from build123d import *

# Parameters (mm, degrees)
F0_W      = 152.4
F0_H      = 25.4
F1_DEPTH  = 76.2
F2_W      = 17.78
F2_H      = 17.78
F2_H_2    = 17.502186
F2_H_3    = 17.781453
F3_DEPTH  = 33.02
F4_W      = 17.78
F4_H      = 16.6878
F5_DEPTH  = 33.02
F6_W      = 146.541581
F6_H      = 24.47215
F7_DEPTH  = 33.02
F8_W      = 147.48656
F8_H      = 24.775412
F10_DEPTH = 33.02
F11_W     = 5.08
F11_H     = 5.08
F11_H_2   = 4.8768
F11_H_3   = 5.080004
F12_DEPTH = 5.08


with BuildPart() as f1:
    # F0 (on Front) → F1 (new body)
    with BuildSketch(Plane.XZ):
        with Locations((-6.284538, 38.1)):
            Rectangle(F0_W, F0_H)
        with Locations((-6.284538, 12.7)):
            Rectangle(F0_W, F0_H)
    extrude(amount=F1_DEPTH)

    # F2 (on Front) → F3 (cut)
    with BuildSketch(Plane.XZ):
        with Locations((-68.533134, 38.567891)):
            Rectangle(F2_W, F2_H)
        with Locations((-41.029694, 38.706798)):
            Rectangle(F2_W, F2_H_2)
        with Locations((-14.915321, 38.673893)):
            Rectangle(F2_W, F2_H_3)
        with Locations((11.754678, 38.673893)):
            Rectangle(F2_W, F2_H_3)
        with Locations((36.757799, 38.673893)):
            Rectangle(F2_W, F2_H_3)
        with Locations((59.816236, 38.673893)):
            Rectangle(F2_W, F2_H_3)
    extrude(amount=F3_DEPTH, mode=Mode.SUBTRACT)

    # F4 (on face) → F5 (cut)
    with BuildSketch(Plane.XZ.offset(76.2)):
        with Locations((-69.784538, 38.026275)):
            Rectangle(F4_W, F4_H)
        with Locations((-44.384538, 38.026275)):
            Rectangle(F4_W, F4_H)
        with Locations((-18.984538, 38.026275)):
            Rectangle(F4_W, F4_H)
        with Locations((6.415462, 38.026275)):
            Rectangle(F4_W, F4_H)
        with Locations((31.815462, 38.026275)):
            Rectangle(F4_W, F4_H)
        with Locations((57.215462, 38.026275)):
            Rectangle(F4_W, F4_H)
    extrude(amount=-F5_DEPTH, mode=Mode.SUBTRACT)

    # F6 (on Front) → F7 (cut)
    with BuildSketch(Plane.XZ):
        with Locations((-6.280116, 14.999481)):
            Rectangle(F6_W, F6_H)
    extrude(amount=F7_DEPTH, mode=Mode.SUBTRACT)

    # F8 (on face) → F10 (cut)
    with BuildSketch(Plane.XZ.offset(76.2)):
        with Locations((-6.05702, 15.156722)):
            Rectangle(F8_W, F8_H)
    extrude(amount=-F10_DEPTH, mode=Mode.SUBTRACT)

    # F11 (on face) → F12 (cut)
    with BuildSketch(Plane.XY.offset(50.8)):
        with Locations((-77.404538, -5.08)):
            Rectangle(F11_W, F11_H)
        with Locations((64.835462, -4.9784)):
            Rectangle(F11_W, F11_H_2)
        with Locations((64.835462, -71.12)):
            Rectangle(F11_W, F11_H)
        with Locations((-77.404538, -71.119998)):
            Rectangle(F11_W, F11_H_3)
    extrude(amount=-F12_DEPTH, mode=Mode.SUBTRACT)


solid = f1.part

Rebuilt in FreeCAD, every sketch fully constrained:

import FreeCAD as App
import Part
import Sketcher
Q = App.Units.Quantity

doc = App.newDocument("Part")
body = doc.addObject("PartDesign::Body", "Body")

# Sketch on XZ plane
sketch1 = body.newObject("Sketcher::SketchObject", "Sketch")
sketch1.AttachmentSupport = (doc.getObject("XZ_Plane"), [""])
sketch1.MapMode = "FlatFace"
sketch1.addGeometry([
    Part.LineSegment(App.Vector(-82, 51, 0), App.Vector(-82, 0, 0)),
    Part.LineSegment(App.Vector(-82, 0, 0), App.Vector(70, 0, 0)),
    Part.LineSegment(App.Vector(70, 0, 0), App.Vector(70, 51, 0)),
    Part.LineSegment(App.Vector(70, 51, 0), App.Vector(-82, 51, 0)),
], False)
sketch1.addConstraint([
    Sketcher.Constraint("Coincident", 0, 2, 1, 1),
    Sketcher.Constraint("Coincident", 1, 2, 2, 1),
    Sketcher.Constraint("Coincident", 2, 2, 3, 1),
    Sketcher.Constraint("Coincident", 3, 2, 0, 1),
    Sketcher.Constraint("Vertical", 0),
    Sketcher.Constraint("Horizontal", 1),
    Sketcher.Constraint("Vertical", 2),
    Sketcher.Constraint("Horizontal", 3),
    Sketcher.Constraint("PointOnObject", 0, 2, -1),
    Sketcher.Constraint("DistanceX", 1, 1, 1, 2, Q("6 in")),
    Sketcher.Constraint("DistanceY", 0, 2, 0, 1, Q("2 in")),
    Sketcher.Constraint("DistanceX", 0, 2, -1, 1, 82.484538),
])
pad1 = body.newObject("PartDesign::Pad", "Pad")
pad1.Profile = sketch1
pad1.Length = Q("3 in")

# Sketch on XZ plane
sketch2 = body.newObject("Sketcher::SketchObject", "Sketch001")
sketch2.AttachmentSupport = (doc.getObject("XZ_Plane"), [""])
sketch2.MapMode = "FlatFace"
sketch2.addGeometry([
    Part.LineSegment(App.Vector(-77, 47, 0), App.Vector(-77, 30, 0)),  # 0
    Part.LineSegment(App.Vector(-77, 30, 0), App.Vector(-60, 30, 0)),  # 1
    Part.LineSegment(App.Vector(-60, 30, 0), App.Vector(-60, 47, 0)),  # 2
    Part.LineSegment(App.Vector(-60, 47, 0), App.Vector(-77, 47, 0)),  # 3
    Part.LineSegment(App.Vector(-50, 47, 0), App.Vector(-50, 30, 0)),  # 4
    Part.LineSegment(App.Vector(-50, 30, 0), App.Vector(-32, 30, 0)),  # 5
    Part.LineSegment(App.Vector(-32, 30, 0), App.Vector(-32, 47, 0)),  # 6
    Part.LineSegment(App.Vector(-32, 47, 0), App.Vector(-50, 47, 0)),  # 7
    Part.LineSegment(App.Vector(-24, 48, 0), App.Vector(-24, 30, 0)),  # 8
    Part.LineSegment(App.Vector(-24, 30, 0), App.Vector(-6, 30, 0)),  # 9
    Part.LineSegment(App.Vector(-6, 30, 0), App.Vector(-6, 48, 0)),  # 10
    Part.LineSegment(App.Vector(-6, 48, 0), App.Vector(-24, 48, 0)),  # 11
    Part.LineSegment(App.Vector(3, 48, 0), App.Vector(3, 30, 0)),  # 12
    Part.LineSegment(App.Vector(3, 30, 0), App.Vector(21, 30, 0)),  # 13
    Part.LineSegment(App.Vector(21, 30, 0), App.Vector(21, 48, 0)),  # 14
    Part.LineSegment(App.Vector(21, 48, 0), App.Vector(3, 48, 0)),  # 15
    Part.LineSegment(App.Vector(28, 48, 0), App.Vector(28, 30, 0)),  # 16
    Part.LineSegment(App.Vector(28, 30, 0), App.Vector(46, 30, 0)),  # 17
    Part.LineSegment(App.Vector(46, 30, 0), App.Vector(46, 48, 0)),  # 18
    Part.LineSegment(App.Vector(46, 48, 0), App.Vector(28, 48, 0)),  # 19
    Part.LineSegment(App.Vector(51, 48, 0), App.Vector(51, 30, 0)),  # 20
    Part.LineSegment(App.Vector(51, 30, 0), App.Vector(69, 30, 0)),  # 21
    Part.LineSegment(App.Vector(69, 30, 0), App.Vector(69, 48, 0)),  # 22
    Part.LineSegment(App.Vector(69, 48, 0), App.Vector(51, 48, 0)),  # 23
], False)
sketch2.addConstraint([
    Sketcher.Constraint("Coincident", 0, 2, 1, 1),
    Sketcher.Constraint("Coincident", 1, 2, 2, 1),
    Sketcher.Constraint("Coincident", 2, 2, 3, 1),
    Sketcher.Constraint("Coincident", 3, 2, 0, 1),
    Sketcher.Constraint("Coincident", 4, 2, 5, 1),
    Sketcher.Constraint("Coincident", 5, 2, 6, 1),
    Sketcher.Constraint("Coincident", 6, 2, 7, 1),
    Sketcher.Constraint("Coincident", 7, 2, 4, 1),
    Sketcher.Constraint("Coincident", 8, 2, 9, 1),
    Sketcher.Constraint("Coincident", 9, 2, 10, 1),
    Sketcher.Constraint("Coincident", 10, 2, 11, 1),
    Sketcher.Constraint("Coincident", 11, 2, 8, 1),
    Sketcher.Constraint("Coincident", 12, 2, 13, 1),
    Sketcher.Constraint("Coincident", 13, 2, 14, 1),
    Sketcher.Constraint("Coincident", 14, 2, 15, 1),
    Sketcher.Constraint("Coincident", 15, 2, 12, 1),
    Sketcher.Constraint("Coincident", 16, 2, 17, 1),
    Sketcher.Constraint("Coincident", 17, 2, 18, 1),
    Sketcher.Constraint("Coincident", 18, 2, 19, 1),
    Sketcher.Constraint("Coincident", 19, 2, 16, 1),
    Sketcher.Constraint("Coincident", 20, 2, 21, 1),
    Sketcher.Constraint("Coincident", 21, 2, 22, 1),
    Sketcher.Constraint("Coincident", 22, 2, 23, 1),
    Sketcher.Constraint("Coincident", 23, 2, 20, 1),
    Sketcher.Constraint("Vertical", 0),
    Sketcher.Constraint("Horizontal", 1),
    Sketcher.Constraint("Vertical", 2),
    Sketcher.Constraint("Horizontal", 3),
    Sketcher.Constraint("Vertical", 4),
    Sketcher.Constraint("Horizontal", 5),
    Sketcher.Constraint("Vertical", 6),
    Sketcher.Constraint("Horizontal", 7),
    Sketcher.Constraint("Vertical", 8),
    Sketcher.Constraint("Horizontal", 9),
    Sketcher.Constraint("Vertical", 10),
    Sketcher.Constraint("Horizontal", 11),
    Sketcher.Constraint("Vertical", 12),
    Sketcher.Constraint("Horizontal", 13),
    Sketcher.Constraint("Vertical", 14),
    Sketcher.Constraint("Horizontal", 15),
    Sketcher.Constraint("Vertical", 16),
    Sketcher.Constraint("Horizontal", 17),
    Sketcher.Constraint("Vertical", 18),
    Sketcher.Constraint("Horizontal", 19),
    Sketcher.Constraint("Vertical", 20),
    Sketcher.Constraint("Horizontal", 21),
    Sketcher.Constraint("Vertical", 22),
    Sketcher.Constraint("Horizontal", 23),
    Sketcher.Constraint("Horizontal", 3, 2, 6, 2),
    Sketcher.Constraint("Horizontal", 9, 2, 12, 2),
    Sketcher.Constraint("Horizontal", 11, 2, 14, 2),
    Sketcher.Constraint("Horizontal", 13, 2, 16, 2),
    Sketcher.Constraint("Horizontal", 15, 2, 18, 2),
    Sketcher.Constraint("Horizontal", 17, 2, 20, 2),
    Sketcher.Constraint("Horizontal", 19, 2, 22, 2),
    Sketcher.Constraint("Equal", 3, 5),
    Sketcher.Constraint("Equal", 7, 9),
    Sketcher.Constraint("Equal", 11, 13),
    Sketcher.Constraint("Equal", 15, 17),
    Sketcher.Constraint("Equal", 19, 21),
    Sketcher.Constraint("Equal", 23, 0),
    Sketcher.Constraint("DistanceX", 1, 1, 1, 2, Q("0.7 in")),
    Sketcher.Constraint("DistanceX", 9, 2, 12, 2, Q("0.35 in")),
    Sketcher.Constraint("DistanceX", 5, 2, 8, 2, Q("0.3281249 in")),
    Sketcher.Constraint("DistanceX", -1, 1, 16, 2, 27.867799),
    Sketcher.Constraint("DistanceY", 4, 2, 4, 1, 17.502186),
    Sketcher.Constraint("DistanceY", 8, 2, 8, 1, 17.781453),
    Sketcher.Constraint("DistanceY", -1, 1, 0, 2, 29.677891),
    Sketcher.Constraint("DistanceX", 8, 2, -1, 1, 23.805321),
    Sketcher.Constraint("DistanceY", -1, 1, 10, 2, 47.564619),
    Sketcher.Constraint("DistanceX", 1, 2, 4, 2, 9.72344),
    Sketcher.Constraint("DistanceX", 13, 2, 20, 2, 30.281558),
])
pocket1 = body.newObject("PartDesign::Pocket", "Pocket")
pocket1.Profile = sketch2
pocket1.Length = Q("1.3 in")
pocket1.Reversed = True

# Sketch on XZ plane
sketch3 = body.newObject("Sketcher::SketchObject", "Sketch002")
sketch3.AttachmentSupport = (doc.getObject("XZ_Plane"), [""])
sketch3.MapMode = "FlatFace"
sketch3.AttachmentOffset = App.Placement(App.Vector(0, 0, 3 * 25.4), App.Rotation())
sketch3.addGeometry([
    Part.LineSegment(App.Vector(-79, 46, 0), App.Vector(-79, 30, 0)),  # 0
    Part.LineSegment(App.Vector(-79, 30, 0), App.Vector(-61, 30, 0)),  # 1
    Part.LineSegment(App.Vector(-61, 30, 0), App.Vector(-61, 46, 0)),  # 2
    Part.LineSegment(App.Vector(-61, 46, 0), App.Vector(-79, 46, 0)),  # 3
    Part.LineSegment(App.Vector(-53, 46, 0), App.Vector(-53, 30, 0)),  # 4
    Part.LineSegment(App.Vector(-53, 30, 0), App.Vector(-35, 30, 0)),  # 5
    Part.LineSegment(App.Vector(-35, 30, 0), App.Vector(-35, 46, 0)),  # 6
    Part.LineSegment(App.Vector(-35, 46, 0), App.Vector(-53, 46, 0)),  # 7
    Part.LineSegment(App.Vector(-28, 46, 0), App.Vector(-28, 30, 0)),  # 8
    Part.LineSegment(App.Vector(-28, 30, 0), App.Vector(-10, 30, 0)),  # 9
    Part.LineSegment(App.Vector(-10, 30, 0), App.Vector(-10, 46, 0)),  # 10
    Part.LineSegment(App.Vector(-10, 46, 0), App.Vector(-28, 46, 0)),  # 11
    Part.LineSegment(App.Vector(-2, 46, 0), App.Vector(-2, 30, 0)),  # 12
    Part.LineSegment(App.Vector(-2, 30, 0), App.Vector(15, 30, 0)),  # 13
    Part.LineSegment(App.Vector(15, 30, 0), App.Vector(15, 46, 0)),  # 14
    Part.LineSegment(App.Vector(15, 46, 0), App.Vector(-2, 46, 0)),  # 15
    Part.LineSegment(App.Vector(23, 46, 0), App.Vector(23, 30, 0)),  # 16
    Part.LineSegment(App.Vector(23, 30, 0), App.Vector(41, 30, 0)),  # 17
    Part.LineSegment(App.Vector(41, 30, 0), App.Vector(41, 46, 0)),  # 18
    Part.LineSegment(App.Vector(41, 46, 0), App.Vector(23, 46, 0)),  # 19
    Part.LineSegment(App.Vector(48, 46, 0), App.Vector(48, 30, 0)),  # 20
    Part.LineSegment(App.Vector(48, 30, 0), App.Vector(66, 30, 0)),  # 21
    Part.LineSegment(App.Vector(66, 30, 0), App.Vector(66, 46, 0)),  # 22
    Part.LineSegment(App.Vector(66, 46, 0), App.Vector(48, 46, 0)),  # 23
], False)
sketch3.addConstraint([
    Sketcher.Constraint("Coincident", 0, 2, 1, 1),
    Sketcher.Constraint("Coincident", 1, 2, 2, 1),
    Sketcher.Constraint("Coincident", 2, 2, 3, 1),
    Sketcher.Constraint("Coincident", 3, 2, 0, 1),
    Sketcher.Constraint("Coincident", 4, 2, 5, 1),
    Sketcher.Constraint("Coincident", 5, 2, 6, 1),
    Sketcher.Constraint("Coincident", 6, 2, 7, 1),
    Sketcher.Constraint("Coincident", 7, 2, 4, 1),
    Sketcher.Constraint("Coincident", 8, 2, 9, 1),
    Sketcher.Constraint("Coincident", 9, 2, 10, 1),
    Sketcher.Constraint("Coincident", 10, 2, 11, 1),
    Sketcher.Constraint("Coincident", 11, 2, 8, 1),
    Sketcher.Constraint("Coincident", 12, 2, 13, 1),
    Sketcher.Constraint("Coincident", 13, 2, 14, 1),
    Sketcher.Constraint("Coincident", 14, 2, 15, 1),
    Sketcher.Constraint("Coincident", 15, 2, 12, 1),
    Sketcher.Constraint("Coincident", 16, 2, 17, 1),
    Sketcher.Constraint("Coincident", 17, 2, 18, 1),
    Sketcher.Constraint("Coincident", 18, 2, 19, 1),
    Sketcher.Constraint("Coincident", 19, 2, 16, 1),
    Sketcher.Constraint("Coincident", 20, 2, 21, 1),
    Sketcher.Constraint("Coincident", 21, 2, 22, 1),
    Sketcher.Constraint("Coincident", 22, 2, 23, 1),
    Sketcher.Constraint("Coincident", 23, 2, 20, 1),
    Sketcher.Constraint("Vertical", 0),
    Sketcher.Constraint("Horizontal", 1),
    Sketcher.Constraint("Vertical", 2),
    Sketcher.Constraint("Horizontal", 3),
    Sketcher.Constraint("Vertical", 4),
    Sketcher.Constraint("Horizontal", 5),
    Sketcher.Constraint("Vertical", 6),
    Sketcher.Constraint("Horizontal", 7),
    Sketcher.Constraint("Vertical", 8),
    Sketcher.Constraint("Horizontal", 9),
    Sketcher.Constraint("Vertical", 10),
    Sketcher.Constraint("Horizontal", 11),
    Sketcher.Constraint("Vertical", 12),
    Sketcher.Constraint("Horizontal", 13),
    Sketcher.Constraint("Vertical", 14),
    Sketcher.Constraint("Horizontal", 15),
    Sketcher.Constraint("Vertical", 16),
    Sketcher.Constraint("Horizontal", 17),
    Sketcher.Constraint("Vertical", 18),
    Sketcher.Constraint("Horizontal", 19),
    Sketcher.Constraint("Vertical", 20),
    Sketcher.Constraint("Horizontal", 21),
    Sketcher.Constraint("Vertical", 22),
    Sketcher.Constraint("Horizontal", 23),
    Sketcher.Constraint("Horizontal", 1, 2, 4, 2),
    Sketcher.Constraint("Horizontal", 3, 2, 6, 2),
    Sketcher.Constraint("Horizontal", 5, 2, 8, 2),
    Sketcher.Constraint("Horizontal", 7, 2, 10, 2),
    Sketcher.Constraint("Horizontal", 9, 2, 12, 2),
    Sketcher.Constraint("Horizontal", 11, 2, 14, 2),
    Sketcher.Constraint("Horizontal", 13, 2, 16, 2),
    Sketcher.Constraint("Horizontal", 15, 2, 18, 2),
    Sketcher.Constraint("Horizontal", 17, 2, 20, 2),
    Sketcher.Constraint("Horizontal", 19, 2, 22, 2),
    Sketcher.Constraint("Equal", 3, 5),
    Sketcher.Constraint("Equal", 7, 9),
    Sketcher.Constraint("Equal", 11, 13),
    Sketcher.Constraint("Equal", 15, 17),
    Sketcher.Constraint("Equal", 19, 21),
    Sketcher.Constraint("DistanceX", 1, 1, 1, 2, Q("0.7 in")),
    Sketcher.Constraint("DistanceX", 0, 2, 4, 2, Q("1 in")),
    Sketcher.Constraint("DistanceX", 4, 2, 8, 2, Q("1 in")),
    Sketcher.Constraint("DistanceX", 8, 2, 12, 2, Q("1 in")),
    Sketcher.Constraint("DistanceX", 12, 2, 16, 2, Q("1 in")),
    Sketcher.Constraint("DistanceX", 16, 2, 20, 2, Q("1 in")),
    Sketcher.Constraint("DistanceY", 0, 2, 0, 1, Q("0.657 in")),
    Sketcher.Constraint("DistanceX", 0, 2, -1, 1, 78.674538),
    Sketcher.Constraint("DistanceY", -1, 1, 0, 2, 29.682375),
])
pocket2 = body.newObject("PartDesign::Pocket", "Pocket001")
pocket2.Profile = sketch3
pocket2.Length = Q("1.3 in")

# Sketch on XZ plane
sketch4 = body.newObject("Sketcher::SketchObject", "Sketch003")
sketch4.AttachmentSupport = (doc.getObject("XZ_Plane"), [""])
sketch4.MapMode = "FlatFace"
sketch4.addGeometry([
    Part.LineSegment(App.Vector(-80, 27, 0), App.Vector(-80, 3, 0)),
    Part.LineSegment(App.Vector(-80, 3, 0), App.Vector(67, 3, 0)),
    Part.LineSegment(App.Vector(67, 3, 0), App.Vector(67, 27, 0)),
    Part.LineSegment(App.Vector(67, 27, 0), App.Vector(-80, 27, 0)),
], False)
sketch4.addConstraint([
    Sketcher.Constraint("Coincident", 0, 2, 1, 1),
    Sketcher.Constraint("Coincident", 1, 2, 2, 1),
    Sketcher.Constraint("Coincident", 2, 2, 3, 1),
    Sketcher.Constraint("Coincident", 3, 2, 0, 1),
    Sketcher.Constraint("Vertical", 0),
    Sketcher.Constraint("Horizontal", 1),
    Sketcher.Constraint("Vertical", 2),
    Sketcher.Constraint("Horizontal", 3),
    Sketcher.Constraint("DistanceX", 1, 1, 1, 2, 146.541581),
    Sketcher.Constraint("DistanceY", 0, 2, 0, 1, 24.47215),
    Sketcher.Constraint("DistanceX", 0, 2, -1, 1, 79.550906),
    Sketcher.Constraint("DistanceY", -1, 1, 0, 2, 2.763406),
])
pocket3 = body.newObject("PartDesign::Pocket", "Pocket002")
pocket3.Profile = sketch4
pocket3.Length = Q("1.3 in")
pocket3.Reversed = True

# Sketch on XZ plane
sketch5 = body.newObject("Sketcher::SketchObject", "Sketch004")
sketch5.AttachmentSupport = (doc.getObject("XZ_Plane"), [""])
sketch5.MapMode = "FlatFace"
sketch5.AttachmentOffset = App.Placement(App.Vector(0, 0, 3 * 25.4), App.Rotation())
sketch5.addGeometry([
    Part.LineSegment(App.Vector(-80, 28, 0), App.Vector(-80, 3, 0)),
    Part.LineSegment(App.Vector(-80, 3, 0), App.Vector(68, 3, 0)),
    Part.LineSegment(App.Vector(68, 3, 0), App.Vector(68, 28, 0)),
    Part.LineSegment(App.Vector(68, 28, 0), App.Vector(-80, 28, 0)),
], False)
sketch5.addConstraint([
    Sketcher.Constraint("Coincident", 0, 2, 1, 1),
    Sketcher.Constraint("Coincident", 1, 2, 2, 1),
    Sketcher.Constraint("Coincident", 2, 2, 3, 1),
    Sketcher.Constraint("Coincident", 3, 2, 0, 1),
    Sketcher.Constraint("Vertical", 0),
    Sketcher.Constraint("Horizontal", 1),
    Sketcher.Constraint("Vertical", 2),
    Sketcher.Constraint("Horizontal", 3),
    Sketcher.Constraint("DistanceX", 1, 1, 1, 2, 147.48656),
    Sketcher.Constraint("DistanceY", 0, 2, 0, 1, 24.775412),
    Sketcher.Constraint("DistanceX", 0, 2, -1, 1, 79.8003),
    Sketcher.Constraint("DistanceY", -1, 1, 2, 2, 27.544428),
])
pocket4 = body.newObject("PartDesign::Pocket", "Pocket003")
pocket4.Profile = sketch5
pocket4.Length = Q("1.3 in")

# Sketch on XY plane
sketch6 = body.newObject("Sketcher::SketchObject", "Sketch005")
sketch6.AttachmentSupport = (doc.getObject("XY_Plane"), [""])
sketch6.MapMode = "FlatFace"
sketch6.AttachmentOffset = App.Placement(App.Vector(0, 0, 2 * 25.4), App.Rotation())
sketch6.addGeometry([
    Part.LineSegment(App.Vector(-79.9, -2.5, 0), App.Vector(-79.9, -7.6, 0)),  # 0
    Part.LineSegment(App.Vector(-79.9, -7.6, 0), App.Vector(-74.9, -7.6, 0)),  # 1
    Part.LineSegment(App.Vector(-74.9, -7.6, 0), App.Vector(-74.9, -2.5, 0)),  # 2
    Part.LineSegment(App.Vector(-74.9, -2.5, 0), App.Vector(-79.9, -2.5, 0)),  # 3
    Part.LineSegment(App.Vector(62.3, -2.5, 0), App.Vector(62.3, -7.4, 0)),  # 4
    Part.LineSegment(App.Vector(62.3, -7.4, 0), App.Vector(67.4, -7.4, 0)),  # 5
    Part.LineSegment(App.Vector(67.4, -7.4, 0), App.Vector(67.4, -2.5, 0)),  # 6
    Part.LineSegment(App.Vector(67.4, -2.5, 0), App.Vector(62.3, -2.5, 0)),  # 7
    Part.LineSegment(App.Vector(62.3, -68.6, 0), App.Vector(62.3, -73.7, 0)),  # 8
    Part.LineSegment(App.Vector(62.3, -73.7, 0), App.Vector(67.4, -73.7, 0)),  # 9
    Part.LineSegment(App.Vector(67.4, -73.7, 0), App.Vector(67.4, -68.6, 0)),  # 10
    Part.LineSegment(App.Vector(67.4, -68.6, 0), App.Vector(62.3, -68.6, 0)),  # 11
    Part.LineSegment(App.Vector(-79.9, -68.6, 0), App.Vector(-79.9, -73.7, 0)),  # 12
    Part.LineSegment(App.Vector(-79.9, -73.7, 0), App.Vector(-74.9, -73.7, 0)),  # 13
    Part.LineSegment(App.Vector(-74.9, -73.7, 0), App.Vector(-74.9, -68.6, 0)),  # 14
    Part.LineSegment(App.Vector(-74.9, -68.6, 0), App.Vector(-79.9, -68.6, 0)),  # 15
], False)
sketch6.addConstraint([
    Sketcher.Constraint("Coincident", 0, 2, 1, 1),
    Sketcher.Constraint("Coincident", 1, 2, 2, 1),
    Sketcher.Constraint("Coincident", 2, 2, 3, 1),
    Sketcher.Constraint("Coincident", 3, 2, 0, 1),
    Sketcher.Constraint("Coincident", 4, 2, 5, 1),
    Sketcher.Constraint("Coincident", 5, 2, 6, 1),
    Sketcher.Constraint("Coincident", 6, 2, 7, 1),
    Sketcher.Constraint("Coincident", 7, 2, 4, 1),
    Sketcher.Constraint("Coincident", 8, 2, 9, 1),
    Sketcher.Constraint("Coincident", 9, 2, 10, 1),
    Sketcher.Constraint("Coincident", 10, 2, 11, 1),
    Sketcher.Constraint("Coincident", 11, 2, 8, 1),
    Sketcher.Constraint("Coincident", 12, 2, 13, 1),
    Sketcher.Constraint("Coincident", 13, 2, 14, 1),
    Sketcher.Constraint("Coincident", 14, 2, 15, 1),
    Sketcher.Constraint("Coincident", 15, 2, 12, 1),
    Sketcher.Constraint("Vertical", 0),
    Sketcher.Constraint("Horizontal", 1),
    Sketcher.Constraint("Vertical", 2),
    Sketcher.Constraint("Horizontal", 3),
    Sketcher.Constraint("Vertical", 4),
    Sketcher.Constraint("Horizontal", 5),
    Sketcher.Constraint("Vertical", 6),
    Sketcher.Constraint("Horizontal", 7),
    Sketcher.Constraint("Vertical", 8),
    Sketcher.Constraint("Horizontal", 9),
    Sketcher.Constraint("Vertical", 10),
    Sketcher.Constraint("Horizontal", 11),
    Sketcher.Constraint("Vertical", 12),
    Sketcher.Constraint("Horizontal", 13),
    Sketcher.Constraint("Vertical", 14),
    Sketcher.Constraint("Horizontal", 15),
    Sketcher.Constraint("Horizontal", 3, 2, 6, 2),
    Sketcher.Constraint("Horizontal", 9, 2, 12, 2),
    Sketcher.Constraint("Vertical", 7, 2, 8, 2),
    Sketcher.Constraint("Vertical", 6, 2, 9, 2),
    Sketcher.Constraint("Vertical", 3, 2, 12, 2),
    Sketcher.Constraint("Vertical", 2, 2, 13, 2),
    Sketcher.Constraint("Equal", 3, 5),
    Sketcher.Constraint("Equal", 15, 0),
    Sketcher.Constraint("Equal", 2, 8),
    Sketcher.Constraint("DistanceX", 1, 1, 1, 2, Q("0.2 in")),
    Sketcher.Constraint("DistanceY", 12, 2, 12, 1, Q("0.2000002 in")),
    Sketcher.Constraint("DistanceY", 0, 2, -1, 1, Q("0.3 in")),
    Sketcher.Constraint("DistanceY", 8, 2, -1, 1, Q("2.9 in")),
    Sketcher.Constraint("DistanceX", 1, 2, 4, 2, Q("5.4 in")),
    Sketcher.Constraint("DistanceY", 4, 2, 4, 1, Q("0.192 in")),
    Sketcher.Constraint("DistanceX", -1, 1, 5, 2, 67.375462),
])
pocket5 = body.newObject("PartDesign::Pocket", "Pocket004")
pocket5.Profile = sketch6
pocket5.Length = Q("0.2 in")

doc.recompute()
